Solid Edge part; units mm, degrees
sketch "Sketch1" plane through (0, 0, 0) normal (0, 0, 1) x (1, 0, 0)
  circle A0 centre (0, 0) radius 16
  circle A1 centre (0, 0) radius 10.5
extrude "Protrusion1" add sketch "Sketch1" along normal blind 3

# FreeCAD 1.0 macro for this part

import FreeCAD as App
import Part
import Sketcher

doc = App.newDocument("Part")
body = doc.addObject("PartDesign::Body", "Body")

sketch1 = body.newObject("Sketcher::SketchObject", "Sketch")
sketch1.AttachmentSupport = (doc.getObject("XY_Plane"), [""])
sketch1.MapMode = "FlatFace"
sketch1.addGeometry([
    Part.Circle(App.Vector(0, 0, 0), App.Vector(0, 0, 1), 16),
    Part.Circle(App.Vector(0, 0, 0), App.Vector(0, 0, 1), 10),
], False)
sketch1.addConstraint([
    Sketcher.Constraint("Coincident", 0, 3, -1, 1),
    Sketcher.Constraint("Coincident", 1, 3, -1, 1),
    Sketcher.Constraint("Diameter", 0, 32.0),
    Sketcher.Constraint("Diameter", 1, 21.0),
])
pad1 = body.newObject("PartDesign::Pad", "Pad")
pad1.Profile = sketch1
pad1.Length = 3

doc.recompute()
